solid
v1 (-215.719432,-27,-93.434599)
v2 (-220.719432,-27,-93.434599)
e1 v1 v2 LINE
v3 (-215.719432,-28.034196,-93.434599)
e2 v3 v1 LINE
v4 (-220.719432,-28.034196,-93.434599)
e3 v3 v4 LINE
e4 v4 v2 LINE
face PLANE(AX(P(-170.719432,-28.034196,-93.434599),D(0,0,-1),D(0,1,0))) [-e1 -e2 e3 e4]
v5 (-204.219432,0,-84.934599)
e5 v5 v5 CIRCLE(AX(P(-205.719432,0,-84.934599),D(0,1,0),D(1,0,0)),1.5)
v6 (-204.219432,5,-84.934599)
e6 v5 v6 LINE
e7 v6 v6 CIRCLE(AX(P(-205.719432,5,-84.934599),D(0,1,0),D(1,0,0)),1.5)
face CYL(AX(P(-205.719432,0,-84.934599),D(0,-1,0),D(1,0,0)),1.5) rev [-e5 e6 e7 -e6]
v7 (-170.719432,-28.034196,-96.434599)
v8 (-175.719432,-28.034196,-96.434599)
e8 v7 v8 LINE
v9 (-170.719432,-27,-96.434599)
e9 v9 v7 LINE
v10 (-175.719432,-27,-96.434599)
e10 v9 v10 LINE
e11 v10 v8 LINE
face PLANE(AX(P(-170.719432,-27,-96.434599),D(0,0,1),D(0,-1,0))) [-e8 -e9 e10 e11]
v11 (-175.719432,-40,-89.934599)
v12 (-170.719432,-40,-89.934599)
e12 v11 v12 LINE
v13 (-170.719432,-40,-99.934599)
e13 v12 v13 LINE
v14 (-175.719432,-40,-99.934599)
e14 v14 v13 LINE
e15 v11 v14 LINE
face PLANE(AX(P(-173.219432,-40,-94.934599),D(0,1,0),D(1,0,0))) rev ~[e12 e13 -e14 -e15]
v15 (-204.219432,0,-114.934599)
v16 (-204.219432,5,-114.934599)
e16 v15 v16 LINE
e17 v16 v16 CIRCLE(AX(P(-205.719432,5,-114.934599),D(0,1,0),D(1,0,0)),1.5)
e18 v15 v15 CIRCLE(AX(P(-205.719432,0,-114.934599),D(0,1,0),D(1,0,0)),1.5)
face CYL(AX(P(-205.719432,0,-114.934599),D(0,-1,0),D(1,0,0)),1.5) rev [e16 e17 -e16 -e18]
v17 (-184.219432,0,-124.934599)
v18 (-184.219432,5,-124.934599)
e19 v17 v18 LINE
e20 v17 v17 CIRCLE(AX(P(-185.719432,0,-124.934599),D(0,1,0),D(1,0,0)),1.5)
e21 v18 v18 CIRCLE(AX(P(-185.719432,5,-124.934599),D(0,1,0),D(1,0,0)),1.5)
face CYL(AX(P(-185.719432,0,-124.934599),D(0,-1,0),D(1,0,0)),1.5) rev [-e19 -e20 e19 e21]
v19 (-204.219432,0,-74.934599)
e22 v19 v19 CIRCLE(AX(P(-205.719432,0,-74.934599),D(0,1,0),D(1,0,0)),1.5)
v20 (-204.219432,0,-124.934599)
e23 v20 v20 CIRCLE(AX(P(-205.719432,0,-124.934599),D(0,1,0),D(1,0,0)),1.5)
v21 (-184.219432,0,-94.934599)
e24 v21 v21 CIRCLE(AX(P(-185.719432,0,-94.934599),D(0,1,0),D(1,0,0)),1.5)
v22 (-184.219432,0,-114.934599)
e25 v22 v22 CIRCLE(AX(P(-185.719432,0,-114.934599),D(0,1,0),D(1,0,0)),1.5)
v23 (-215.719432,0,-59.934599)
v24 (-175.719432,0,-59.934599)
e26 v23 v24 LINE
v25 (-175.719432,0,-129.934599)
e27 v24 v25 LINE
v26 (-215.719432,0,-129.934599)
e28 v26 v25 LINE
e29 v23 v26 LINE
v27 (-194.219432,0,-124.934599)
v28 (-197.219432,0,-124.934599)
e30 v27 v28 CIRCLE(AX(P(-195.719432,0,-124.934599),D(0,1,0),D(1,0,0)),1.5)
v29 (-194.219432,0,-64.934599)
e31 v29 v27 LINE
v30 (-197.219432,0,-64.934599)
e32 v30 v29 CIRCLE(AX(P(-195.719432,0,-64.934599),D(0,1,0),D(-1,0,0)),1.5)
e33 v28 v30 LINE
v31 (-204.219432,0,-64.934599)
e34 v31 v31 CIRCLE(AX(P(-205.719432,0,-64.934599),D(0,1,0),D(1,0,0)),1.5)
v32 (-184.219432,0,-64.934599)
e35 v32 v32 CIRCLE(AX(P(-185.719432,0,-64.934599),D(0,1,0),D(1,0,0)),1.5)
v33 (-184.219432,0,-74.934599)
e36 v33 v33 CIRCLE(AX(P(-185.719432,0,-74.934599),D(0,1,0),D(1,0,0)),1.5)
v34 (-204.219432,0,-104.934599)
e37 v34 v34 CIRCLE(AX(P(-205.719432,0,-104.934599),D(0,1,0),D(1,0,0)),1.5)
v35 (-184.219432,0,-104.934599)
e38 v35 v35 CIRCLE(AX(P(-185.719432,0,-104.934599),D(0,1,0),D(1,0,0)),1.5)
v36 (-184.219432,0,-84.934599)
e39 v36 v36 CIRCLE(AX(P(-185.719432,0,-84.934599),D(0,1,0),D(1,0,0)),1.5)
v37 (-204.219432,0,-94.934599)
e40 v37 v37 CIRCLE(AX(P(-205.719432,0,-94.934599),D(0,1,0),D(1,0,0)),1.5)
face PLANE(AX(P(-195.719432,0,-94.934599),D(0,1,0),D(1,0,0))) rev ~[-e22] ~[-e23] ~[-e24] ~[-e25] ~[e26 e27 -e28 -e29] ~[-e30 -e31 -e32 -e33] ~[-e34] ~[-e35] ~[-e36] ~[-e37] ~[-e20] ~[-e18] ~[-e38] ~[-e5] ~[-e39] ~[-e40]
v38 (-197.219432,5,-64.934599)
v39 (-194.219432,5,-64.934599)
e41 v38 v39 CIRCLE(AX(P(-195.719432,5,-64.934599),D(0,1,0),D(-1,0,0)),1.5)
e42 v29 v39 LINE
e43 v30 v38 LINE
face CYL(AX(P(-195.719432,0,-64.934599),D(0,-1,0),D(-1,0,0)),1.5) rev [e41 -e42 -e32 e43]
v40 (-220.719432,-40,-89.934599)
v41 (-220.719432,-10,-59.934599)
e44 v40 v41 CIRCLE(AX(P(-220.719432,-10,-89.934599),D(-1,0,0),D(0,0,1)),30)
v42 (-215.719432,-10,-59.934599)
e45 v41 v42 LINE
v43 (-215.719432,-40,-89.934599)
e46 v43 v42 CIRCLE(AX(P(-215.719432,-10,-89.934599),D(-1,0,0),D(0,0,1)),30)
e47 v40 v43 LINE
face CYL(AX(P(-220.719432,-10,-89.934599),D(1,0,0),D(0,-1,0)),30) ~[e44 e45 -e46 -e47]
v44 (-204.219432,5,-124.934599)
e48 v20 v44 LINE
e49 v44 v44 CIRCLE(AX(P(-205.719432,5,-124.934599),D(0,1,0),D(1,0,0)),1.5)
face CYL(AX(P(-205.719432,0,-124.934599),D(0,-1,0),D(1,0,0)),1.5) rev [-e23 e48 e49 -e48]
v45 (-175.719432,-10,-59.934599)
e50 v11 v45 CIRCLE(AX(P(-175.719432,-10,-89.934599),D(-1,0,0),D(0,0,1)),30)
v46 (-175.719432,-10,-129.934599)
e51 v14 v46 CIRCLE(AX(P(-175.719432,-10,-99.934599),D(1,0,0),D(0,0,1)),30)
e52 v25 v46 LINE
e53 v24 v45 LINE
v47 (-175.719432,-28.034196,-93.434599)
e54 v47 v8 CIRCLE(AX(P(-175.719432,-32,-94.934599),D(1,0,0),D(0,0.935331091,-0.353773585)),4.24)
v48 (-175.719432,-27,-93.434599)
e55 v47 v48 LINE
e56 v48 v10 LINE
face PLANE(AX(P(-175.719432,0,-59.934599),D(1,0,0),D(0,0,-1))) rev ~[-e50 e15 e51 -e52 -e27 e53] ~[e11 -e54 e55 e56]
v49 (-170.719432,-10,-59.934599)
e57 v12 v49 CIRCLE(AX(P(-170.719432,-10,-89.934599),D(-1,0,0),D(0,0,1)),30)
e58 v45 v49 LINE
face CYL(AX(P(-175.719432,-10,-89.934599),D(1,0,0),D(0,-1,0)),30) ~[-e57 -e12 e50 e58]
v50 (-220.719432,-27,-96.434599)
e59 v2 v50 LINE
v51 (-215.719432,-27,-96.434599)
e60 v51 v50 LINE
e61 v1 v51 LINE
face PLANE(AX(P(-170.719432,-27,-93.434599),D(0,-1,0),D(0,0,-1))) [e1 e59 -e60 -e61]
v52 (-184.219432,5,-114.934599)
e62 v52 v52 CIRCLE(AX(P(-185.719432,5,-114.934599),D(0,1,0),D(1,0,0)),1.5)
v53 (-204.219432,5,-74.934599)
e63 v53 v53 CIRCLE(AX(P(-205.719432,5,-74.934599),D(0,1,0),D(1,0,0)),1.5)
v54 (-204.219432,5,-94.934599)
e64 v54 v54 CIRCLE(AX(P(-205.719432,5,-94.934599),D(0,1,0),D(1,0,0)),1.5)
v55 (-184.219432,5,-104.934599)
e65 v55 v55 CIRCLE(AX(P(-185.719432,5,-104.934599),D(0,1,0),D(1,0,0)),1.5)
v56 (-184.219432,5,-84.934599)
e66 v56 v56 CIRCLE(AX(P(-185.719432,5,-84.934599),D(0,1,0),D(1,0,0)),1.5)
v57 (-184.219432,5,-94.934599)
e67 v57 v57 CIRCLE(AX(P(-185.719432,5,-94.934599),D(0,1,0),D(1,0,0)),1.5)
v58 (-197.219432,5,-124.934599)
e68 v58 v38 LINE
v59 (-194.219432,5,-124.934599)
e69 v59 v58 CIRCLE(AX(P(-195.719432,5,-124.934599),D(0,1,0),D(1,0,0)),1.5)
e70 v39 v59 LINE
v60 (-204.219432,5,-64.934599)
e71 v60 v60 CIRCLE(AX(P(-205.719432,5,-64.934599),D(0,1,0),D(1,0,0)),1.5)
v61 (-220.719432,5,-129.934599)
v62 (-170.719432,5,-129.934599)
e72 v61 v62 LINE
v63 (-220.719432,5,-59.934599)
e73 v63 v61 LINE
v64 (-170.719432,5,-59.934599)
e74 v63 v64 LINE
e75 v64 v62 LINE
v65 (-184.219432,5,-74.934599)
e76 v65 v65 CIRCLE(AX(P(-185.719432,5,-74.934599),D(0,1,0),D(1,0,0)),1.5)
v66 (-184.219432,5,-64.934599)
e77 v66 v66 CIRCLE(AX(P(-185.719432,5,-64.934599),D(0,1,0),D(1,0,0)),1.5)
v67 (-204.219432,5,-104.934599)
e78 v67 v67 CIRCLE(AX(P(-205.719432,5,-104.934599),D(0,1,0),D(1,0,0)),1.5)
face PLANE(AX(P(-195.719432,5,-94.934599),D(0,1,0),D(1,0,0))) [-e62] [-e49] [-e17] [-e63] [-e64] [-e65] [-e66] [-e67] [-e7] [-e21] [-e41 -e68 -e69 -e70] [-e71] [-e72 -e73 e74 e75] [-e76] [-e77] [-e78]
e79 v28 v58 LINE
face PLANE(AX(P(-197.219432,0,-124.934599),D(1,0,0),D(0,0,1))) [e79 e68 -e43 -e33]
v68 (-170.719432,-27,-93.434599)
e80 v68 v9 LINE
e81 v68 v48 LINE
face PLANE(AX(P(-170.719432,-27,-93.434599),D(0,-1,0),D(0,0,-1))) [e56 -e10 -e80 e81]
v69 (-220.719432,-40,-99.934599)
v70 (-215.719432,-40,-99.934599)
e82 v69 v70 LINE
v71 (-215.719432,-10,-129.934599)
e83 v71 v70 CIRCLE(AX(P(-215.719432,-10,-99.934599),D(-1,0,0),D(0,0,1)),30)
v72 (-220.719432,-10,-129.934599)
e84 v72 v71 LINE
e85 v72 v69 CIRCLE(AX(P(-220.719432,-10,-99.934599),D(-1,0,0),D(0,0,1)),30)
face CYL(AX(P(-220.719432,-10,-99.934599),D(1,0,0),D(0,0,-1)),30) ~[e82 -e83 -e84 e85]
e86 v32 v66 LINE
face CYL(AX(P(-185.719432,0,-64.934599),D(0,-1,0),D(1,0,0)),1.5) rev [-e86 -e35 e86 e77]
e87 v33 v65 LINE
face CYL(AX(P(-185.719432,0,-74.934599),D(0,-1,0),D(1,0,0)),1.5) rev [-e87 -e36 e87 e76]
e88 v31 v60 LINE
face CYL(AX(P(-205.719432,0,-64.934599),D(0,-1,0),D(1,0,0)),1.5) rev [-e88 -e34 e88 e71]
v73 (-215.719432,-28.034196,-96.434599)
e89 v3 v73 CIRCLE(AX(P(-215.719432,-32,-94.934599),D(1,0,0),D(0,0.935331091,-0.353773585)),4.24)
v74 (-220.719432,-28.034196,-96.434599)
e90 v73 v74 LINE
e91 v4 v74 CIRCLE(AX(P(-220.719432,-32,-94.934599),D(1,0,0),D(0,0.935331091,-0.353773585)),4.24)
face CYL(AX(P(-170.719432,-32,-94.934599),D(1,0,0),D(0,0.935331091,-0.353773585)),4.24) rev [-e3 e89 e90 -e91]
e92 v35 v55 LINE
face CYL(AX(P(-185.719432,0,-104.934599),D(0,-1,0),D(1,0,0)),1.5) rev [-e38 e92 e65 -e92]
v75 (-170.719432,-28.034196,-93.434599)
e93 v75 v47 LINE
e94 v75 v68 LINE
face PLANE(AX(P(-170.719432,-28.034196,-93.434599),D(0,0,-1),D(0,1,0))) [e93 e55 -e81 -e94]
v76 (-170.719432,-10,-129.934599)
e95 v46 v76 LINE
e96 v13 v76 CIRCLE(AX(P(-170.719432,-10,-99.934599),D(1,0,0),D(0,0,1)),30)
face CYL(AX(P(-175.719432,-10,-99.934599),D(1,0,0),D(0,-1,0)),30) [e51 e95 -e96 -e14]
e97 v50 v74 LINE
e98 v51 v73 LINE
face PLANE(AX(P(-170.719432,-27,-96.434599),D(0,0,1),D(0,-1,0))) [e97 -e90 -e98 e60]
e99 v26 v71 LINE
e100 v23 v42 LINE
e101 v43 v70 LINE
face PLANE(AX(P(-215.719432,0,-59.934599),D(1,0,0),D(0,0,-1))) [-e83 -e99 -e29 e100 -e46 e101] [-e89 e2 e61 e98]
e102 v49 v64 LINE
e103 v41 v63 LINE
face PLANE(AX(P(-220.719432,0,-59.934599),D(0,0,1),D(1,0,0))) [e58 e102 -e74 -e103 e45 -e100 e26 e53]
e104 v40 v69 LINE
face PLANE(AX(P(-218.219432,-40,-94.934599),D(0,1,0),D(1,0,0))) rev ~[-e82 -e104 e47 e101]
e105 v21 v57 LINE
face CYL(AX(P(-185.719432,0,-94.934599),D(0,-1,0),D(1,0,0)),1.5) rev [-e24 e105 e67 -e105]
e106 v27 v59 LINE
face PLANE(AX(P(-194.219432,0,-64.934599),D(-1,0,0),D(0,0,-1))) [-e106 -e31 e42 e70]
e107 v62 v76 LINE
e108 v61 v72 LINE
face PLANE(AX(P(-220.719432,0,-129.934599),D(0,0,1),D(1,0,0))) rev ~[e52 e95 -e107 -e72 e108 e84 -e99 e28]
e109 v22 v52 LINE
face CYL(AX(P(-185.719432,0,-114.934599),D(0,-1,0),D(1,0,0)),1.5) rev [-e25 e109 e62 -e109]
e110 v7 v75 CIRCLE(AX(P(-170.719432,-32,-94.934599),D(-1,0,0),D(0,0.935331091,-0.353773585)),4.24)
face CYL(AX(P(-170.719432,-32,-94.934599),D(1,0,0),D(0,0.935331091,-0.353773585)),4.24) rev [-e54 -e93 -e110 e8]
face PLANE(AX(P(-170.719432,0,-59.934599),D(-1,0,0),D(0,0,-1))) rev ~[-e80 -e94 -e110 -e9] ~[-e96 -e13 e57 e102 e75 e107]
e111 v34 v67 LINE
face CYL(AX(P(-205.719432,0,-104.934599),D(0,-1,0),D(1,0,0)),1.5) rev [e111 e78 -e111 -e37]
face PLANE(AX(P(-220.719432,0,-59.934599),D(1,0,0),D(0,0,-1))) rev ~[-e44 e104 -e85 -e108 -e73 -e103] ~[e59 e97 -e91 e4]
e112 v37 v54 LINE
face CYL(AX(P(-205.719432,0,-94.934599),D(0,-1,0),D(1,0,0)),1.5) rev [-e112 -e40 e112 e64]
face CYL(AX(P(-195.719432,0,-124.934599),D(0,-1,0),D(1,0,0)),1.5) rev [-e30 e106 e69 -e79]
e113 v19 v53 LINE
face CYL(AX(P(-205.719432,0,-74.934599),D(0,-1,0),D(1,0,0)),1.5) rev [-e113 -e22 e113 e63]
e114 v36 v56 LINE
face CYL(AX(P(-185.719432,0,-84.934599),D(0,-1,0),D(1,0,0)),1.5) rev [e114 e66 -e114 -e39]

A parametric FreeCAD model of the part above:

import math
import FreeCAD as App
import Part
import Sketcher
from FreeCAD import Vector


def edges_at(feature, points):
    """Names of the edges that pass closest to the given points."""
    edges = feature.Shape.Edges
    near = lambda p: min(range(len(edges)), key=lambda i: edges[i].distToShape(Part.Vertex(*p))[0])
    return sorted({f"Edge{near(p) + 1}" for p in points})


def add_polygon(sketch, points):
    """Adds a closed chain of lines whose ends are joined by coincident constraints."""
    first, n = sketch.GeometryCount, len(points)
    for a, b in zip(points, points[1:] + points[:1]):
        sketch.addGeometry(Part.LineSegment(App.Vector(*a, 0), App.Vector(*b, 0)), False)
    for i in range(n):
        sketch.addConstraint(Sketcher.Constraint("Coincident", first + i, 2, first + (i + 1) % n, 1))

doc = App.newDocument("Part")
params = doc.addObject("Spreadsheet::Sheet", "Params")
for row, (alias, value) in enumerate([
    ("sketch1_diameter", "3 mm"),
    ("sketch1_width", "50 mm"),
    ("sketch1_height", "70 mm"),
    ("sketch1_height2", "60 mm"),
    ("pad1_length", "5 mm"),
    ("sketch2_width", "5 mm"),
    ("sketch2_height", "70 mm"),
    ("pad2_length", "40 mm"),
    ("fillet_radius", "30 mm"),
    ("sketch3_height", "3 mm"),
    ("sketch3_radius", "4.24 mm"),
], start=1):
    params.set(f"A{row}", alias)
    params.set(f"B{row}", "=" + value)
    params.setAlias(f"B{row}", alias)

body = doc.addObject("PartDesign::Body", "Body")

sketch1 = body.newObject("Sketcher::SketchObject", "Sketch")
sketch1.AttachmentSupport = (doc.getObject("XZ_Plane"), [""])
sketch1.MapMode = "FlatFace"
add_polygon(sketch1, [(-220.7, -129.9), (-220.7, -59.9), (-170.7, -59.9), (-170.7, -129.9)])
sketch1.addGeometry(Part.Circle(Vector(-205.7, -64.9, 0), Vector(0, 0, 1), 1.5), False)
sketch1.addGeometry(Part.Circle(Vector(-205.7, -74.9, 0), Vector(0, 0, 1), 1.5), False)
sketch1.addGeometry(Part.Circle(Vector(-205.7, -84.9, 0), Vector(0, 0, 1), 1.5), False)
sketch1.addGeometry(Part.Circle(Vector(-185.7, -64.9, 0), Vector(0, 0, 1), 1.5), False)
sketch1.addGeometry(Part.Circle(Vector(-185.7, -74.9, 0), Vector(0, 0, 1), 1.5), False)
sketch1.addGeometry(Part.Circle(Vector(-185.7, -84.9, 0), Vector(0, 0, 1), 1.5), False)
sketch1.addGeometry(Part.Circle(Vector(-205.7, -94.9, 0), Vector(0, 0, 1), 1.5), False)
sketch1.addGeometry(Part.Circle(Vector(-205.7, -104.9, 0), Vector(0, 0, 1), 1.5), False)
sketch1.addGeometry(Part.Circle(Vector(-205.7, -114.9, 0), Vector(0, 0, 1), 1.5), False)
sketch1.addGeometry(Part.Circle(Vector(-205.7, -124.9, 0), Vector(0, 0, 1), 1.5), False)
sketch1.addGeometry(Part.LineSegment(Vector(-197.2, -64.9, 0), Vector(-197.2, -124.9, 0)), False)
sketch1.addGeometry(Part.ArcOfCircle(Part.Circle(Vector(-195.7, -124.9, 0), Vector(0, 0, 1), 1.5), math.radians(180), math.radians(360)), False)
sketch1.addGeometry(Part.LineSegment(Vector(-194.2, -124.9, 0), Vector(-194.2, -64.9, 0)), False)
sketch1.addGeometry(Part.ArcOfCircle(Part.Circle(Vector(-195.7, -64.9, 0), Vector(0, 0, 1), 1.5), math.radians(0), math.radians(180)), False)
sketch1.addGeometry(Part.Circle(Vector(-185.7, -94.9, 0), Vector(0, 0, 1), 1.5), False)
sketch1.addGeometry(Part.Circle(Vector(-185.7, -104.9, 0), Vector(0, 0, 1), 1.5), False)
sketch1.addGeometry(Part.Circle(Vector(-185.7, -114.9, 0), Vector(0, 0, 1), 1.5), False)
sketch1.addGeometry(Part.Circle(Vector(-185.7, -124.9, 0), Vector(0, 0, 1), 1.5), False)
sketch1.addConstraint([
    Sketcher.Constraint("Tangent", 14, 2, 15, 1),
    Sketcher.Constraint("Tangent", 15, 2, 16, 1),
    Sketcher.Constraint("Tangent", 16, 2, 17, 1),
    Sketcher.Constraint("Tangent", 17, 2, 14, 1),
    Sketcher.Constraint("Vertical", 0),
    Sketcher.Constraint("Horizontal", 1),
    Sketcher.Constraint("Vertical", 2),
    Sketcher.Constraint("Horizontal", 3),
    Sketcher.Constraint("Vertical", 14),
    Sketcher.Constraint("Vertical", 16),
    Sketcher.Constraint("Equal", 4, 5),
    Sketcher.Constraint("Equal", 5, 6),
    Sketcher.Constraint("Equal", 6, 7),
    Sketcher.Constraint("Equal", 7, 8),
    Sketcher.Constraint("Equal", 8, 9),
    Sketcher.Constraint("Equal", 9, 10),
    Sketcher.Constraint("Equal", 10, 11),
    Sketcher.Constraint("Equal", 11, 12),
    Sketcher.Constraint("Equal", 12, 13),
    Sketcher.Constraint("Equal", 13, 15),
    Sketcher.Constraint("Equal", 17, 18),
    Sketcher.Constraint("Equal", 18, 19),
    Sketcher.Constraint("Equal", 19, 20),
    Sketcher.Constraint("Equal", 20, 21),
    Sketcher.Constraint("Horizontal", 4, 3, 7, 3),
    Sketcher.Constraint("Horizontal", 5, 3, 8, 3),
    Sketcher.Constraint("Horizontal", 6, 3, 9, 3),
    Sketcher.Constraint("Horizontal", 13, 3, 15, 3),
    Sketcher.Constraint("Horizontal", 7, 3, 17, 3),
    Sketcher.Constraint("Horizontal", 10, 3, 18, 3),
    Sketcher.Constraint("Horizontal", 11, 3, 19, 3),
    Sketcher.Constraint("Horizontal", 12, 3, 20, 3),
    Sketcher.Constraint("Horizontal", 15, 3, 21, 3),
    Sketcher.Constraint("Vertical", 4, 3, 5, 3),
    Sketcher.Constraint("Vertical", 5, 3, 6, 3),
    Sketcher.Constraint("Vertical", 7, 3, 8, 3),
    Sketcher.Constraint("Vertical", 8, 3, 9, 3),
    Sketcher.Constraint("Vertical", 6, 3, 10, 3),
    Sketcher.Constraint("Vertical", 10, 3, 11, 3),
    Sketcher.Constraint("Vertical", 11, 3, 12, 3),
    Sketcher.Constraint("Vertical", 12, 3, 13, 3),
    Sketcher.Constraint("Vertical", 9, 3, 18, 3),
    Sketcher.Constraint("Vertical", 18, 3, 19, 3),
    Sketcher.Constraint("Vertical", 19, 3, 20, 3),
    Sketcher.Constraint("Vertical", 20, 3, 21, 3),
    Sketcher.Constraint("Diameter", 4, 3.0),
    Sketcher.Constraint("DistanceX", 1, 1, 1, 2, 50.0),
    Sketcher.Constraint("DistanceY", 0, 1, 0, 2, 70.0),
    Sketcher.Constraint("DistanceY", 14, 2, 14, 1, 60.0),
    Sketcher.Constraint("DistanceY", 5, 3, 4, 3, 10.0),
    Sketcher.Constraint("DistanceY", 6, 3, 5, 3, 10.0),
    Sketcher.Constraint("DistanceX", 4, 3, 7, 3, 20.0),
    Sketcher.Constraint("DistanceY", 10, 3, 6, 3, 10.0),
    Sketcher.Constraint("DistanceY", 11, 3, 10, 3, 10.0),
    Sketcher.Constraint("DistanceY", 12, 3, 11, 3, 10.0),
    Sketcher.Constraint("DistanceX", 13, 3, 15, 3, 10.0),
    Sketcher.Constraint("DistanceX", 0, 2, 4, 3, 15.0),
    Sketcher.Constraint("DistanceY", 4, 3, 0, 2, 5.0),
    Sketcher.Constraint("DistanceY", 4, 3, -1, 1, 64.934599),
    Sketcher.Constraint("DistanceX", 4, 3, -1, 1, 205.719432),
])
sketch1.setExpression("Constraints[49]", "Params.sketch1_diameter")
sketch1.setExpression("Constraints[50]", "Params.sketch1_width")
sketch1.setExpression("Constraints[51]", "Params.sketch1_height")
sketch1.setExpression("Constraints[52]", "Params.sketch1_height2")
pad1 = body.newObject("PartDesign::Pad", "Pad")
pad1.Profile = sketch1
pad1.setExpression("Length", "Params.pad1_length")
pad1.Reversed = True

sketch2 = body.newObject("Sketcher::SketchObject", "Sketch001")
sketch2.AttachmentSupport = (doc.getObject("XZ_Plane"), [""])
sketch2.MapMode = "FlatFace"
add_polygon(sketch2, [(-221, -130), (-221, -60), (-216, -60), (-216, -130)])
add_polygon(sketch2, [(-176, -130), (-176, -60), (-171, -60), (-171, -130)])
sketch2.addConstraint([
    Sketcher.Constraint("Vertical", 0),
    Sketcher.Constraint("Horizontal", 1),
    Sketcher.Constraint("Vertical", 2),
    Sketcher.Constraint("Horizontal", 3),
    Sketcher.Constraint("Vertical", 4),
    Sketcher.Constraint("Horizontal", 5),
    Sketcher.Constraint("Vertical", 6),
    Sketcher.Constraint("Horizontal", 7),
    Sketcher.Constraint("Horizontal", 1, 2, 4, 2),
    Sketcher.Constraint("Horizontal", 3, 2, 6, 2),
    Sketcher.Constraint("Equal", 3, 5),
    Sketcher.Constraint("DistanceX", 1, 1, 1, 2, 5.0),
    Sketcher.Constraint("DistanceY", 0, 1, 0, 2, 70.0),
    Sketcher.Constraint("DistanceX", 1, 2, 4, 2, 40.0),
    Sketcher.Constraint("DistanceY", 0, 2, -1, 1, 59.934599),
    Sketcher.Constraint("DistanceX", 0, 2, -1, 1, 220.719432),
])
sketch2.setExpression("Constraints[19]", "Params.sketch2_width")
sketch2.setExpression("Constraints[20]", "Params.sketch2_height")
pad2 = body.newObject("PartDesign::Pad", "Pad001")
pad2.Profile = sketch2
pad2.setExpression("Length", "Params.pad2_length")
doc.recompute()

fillet = body.newObject("PartDesign::Fillet", "Fillet")
fillet.Base = (pad2, edges_at(pad2, [
    (-218.219, -40, -129.935),
    (-218.219, -40, -59.935),
    (-173.219, -40, -59.935),
    (-173.219, -40, -129.935),
]))
fillet.setExpression("Radius", "Params.fillet_radius")

sketch3 = body.newObject("Sketcher::SketchObject", "Sketch002")
sketch3.AttachmentSupport = (doc.getObject("YZ_Plane"), [""])
sketch3.MapMode = "FlatFace"
sketch3.AttachmentOffset = App.Placement(Vector(0, 0, -170.719432), App.Rotation())
sketch3.addGeometry([
    Part.LineSegment(Vector(-28, -96.4, 0), Vector(-27, -96.4, 0)),
    Part.LineSegment(Vector(-27, -96.4, 0), Vector(-27, -93.4, 0)),
    Part.LineSegment(Vector(-27, -93.4, 0), Vector(-28, -93.4, 0)),
    Part.ArcOfCircle(Part.Circle(Vector(-32, -94.9, 0), Vector(0, 0, 1), 4.2), math.radians(21), math.radians(339)),
], False)
sketch3.addConstraint([
    Sketcher.Constraint("Coincident", 0, 2, 1, 1),
    Sketcher.Constraint("Coincident", 1, 2, 2, 1),
    Sketcher.Constraint("Coincident", 2, 2, 3, 1),
    Sketcher.Constraint("Coincident", 3, 2, 0, 1),
    Sketcher.Constraint("Horizontal", 0),
    Sketcher.Constraint("Vertical", 1),
    Sketcher.Constraint("Horizontal", 2),
    Sketcher.Constraint("Vertical", 2, 2, 3, 2),
    Sketcher.Constraint("DistanceY", 1, 1, 1, 2, 3.0),
    Sketcher.Constraint("Radius", 3, 4.24),
    Sketcher.Constraint("DistanceX", 3, 3, -1, 1, 32.0),
    Sketcher.Constraint("DistanceX", 0, 2, -1, 1, 27.0),
    Sketcher.Constraint("DistanceY", 3, 3, -1, 1, 94.934599),
])
sketch3.setExpression("Constraints[8]", "Params.sketch3_height")
sketch3.setExpression("Constraints[9]", "Params.sketch3_radius")
pocket1 = body.newObject("PartDesign::Pocket", "Pocket")
pocket1.Profile = sketch3
pocket1.Type = "ThroughAll"

doc.recompute()
